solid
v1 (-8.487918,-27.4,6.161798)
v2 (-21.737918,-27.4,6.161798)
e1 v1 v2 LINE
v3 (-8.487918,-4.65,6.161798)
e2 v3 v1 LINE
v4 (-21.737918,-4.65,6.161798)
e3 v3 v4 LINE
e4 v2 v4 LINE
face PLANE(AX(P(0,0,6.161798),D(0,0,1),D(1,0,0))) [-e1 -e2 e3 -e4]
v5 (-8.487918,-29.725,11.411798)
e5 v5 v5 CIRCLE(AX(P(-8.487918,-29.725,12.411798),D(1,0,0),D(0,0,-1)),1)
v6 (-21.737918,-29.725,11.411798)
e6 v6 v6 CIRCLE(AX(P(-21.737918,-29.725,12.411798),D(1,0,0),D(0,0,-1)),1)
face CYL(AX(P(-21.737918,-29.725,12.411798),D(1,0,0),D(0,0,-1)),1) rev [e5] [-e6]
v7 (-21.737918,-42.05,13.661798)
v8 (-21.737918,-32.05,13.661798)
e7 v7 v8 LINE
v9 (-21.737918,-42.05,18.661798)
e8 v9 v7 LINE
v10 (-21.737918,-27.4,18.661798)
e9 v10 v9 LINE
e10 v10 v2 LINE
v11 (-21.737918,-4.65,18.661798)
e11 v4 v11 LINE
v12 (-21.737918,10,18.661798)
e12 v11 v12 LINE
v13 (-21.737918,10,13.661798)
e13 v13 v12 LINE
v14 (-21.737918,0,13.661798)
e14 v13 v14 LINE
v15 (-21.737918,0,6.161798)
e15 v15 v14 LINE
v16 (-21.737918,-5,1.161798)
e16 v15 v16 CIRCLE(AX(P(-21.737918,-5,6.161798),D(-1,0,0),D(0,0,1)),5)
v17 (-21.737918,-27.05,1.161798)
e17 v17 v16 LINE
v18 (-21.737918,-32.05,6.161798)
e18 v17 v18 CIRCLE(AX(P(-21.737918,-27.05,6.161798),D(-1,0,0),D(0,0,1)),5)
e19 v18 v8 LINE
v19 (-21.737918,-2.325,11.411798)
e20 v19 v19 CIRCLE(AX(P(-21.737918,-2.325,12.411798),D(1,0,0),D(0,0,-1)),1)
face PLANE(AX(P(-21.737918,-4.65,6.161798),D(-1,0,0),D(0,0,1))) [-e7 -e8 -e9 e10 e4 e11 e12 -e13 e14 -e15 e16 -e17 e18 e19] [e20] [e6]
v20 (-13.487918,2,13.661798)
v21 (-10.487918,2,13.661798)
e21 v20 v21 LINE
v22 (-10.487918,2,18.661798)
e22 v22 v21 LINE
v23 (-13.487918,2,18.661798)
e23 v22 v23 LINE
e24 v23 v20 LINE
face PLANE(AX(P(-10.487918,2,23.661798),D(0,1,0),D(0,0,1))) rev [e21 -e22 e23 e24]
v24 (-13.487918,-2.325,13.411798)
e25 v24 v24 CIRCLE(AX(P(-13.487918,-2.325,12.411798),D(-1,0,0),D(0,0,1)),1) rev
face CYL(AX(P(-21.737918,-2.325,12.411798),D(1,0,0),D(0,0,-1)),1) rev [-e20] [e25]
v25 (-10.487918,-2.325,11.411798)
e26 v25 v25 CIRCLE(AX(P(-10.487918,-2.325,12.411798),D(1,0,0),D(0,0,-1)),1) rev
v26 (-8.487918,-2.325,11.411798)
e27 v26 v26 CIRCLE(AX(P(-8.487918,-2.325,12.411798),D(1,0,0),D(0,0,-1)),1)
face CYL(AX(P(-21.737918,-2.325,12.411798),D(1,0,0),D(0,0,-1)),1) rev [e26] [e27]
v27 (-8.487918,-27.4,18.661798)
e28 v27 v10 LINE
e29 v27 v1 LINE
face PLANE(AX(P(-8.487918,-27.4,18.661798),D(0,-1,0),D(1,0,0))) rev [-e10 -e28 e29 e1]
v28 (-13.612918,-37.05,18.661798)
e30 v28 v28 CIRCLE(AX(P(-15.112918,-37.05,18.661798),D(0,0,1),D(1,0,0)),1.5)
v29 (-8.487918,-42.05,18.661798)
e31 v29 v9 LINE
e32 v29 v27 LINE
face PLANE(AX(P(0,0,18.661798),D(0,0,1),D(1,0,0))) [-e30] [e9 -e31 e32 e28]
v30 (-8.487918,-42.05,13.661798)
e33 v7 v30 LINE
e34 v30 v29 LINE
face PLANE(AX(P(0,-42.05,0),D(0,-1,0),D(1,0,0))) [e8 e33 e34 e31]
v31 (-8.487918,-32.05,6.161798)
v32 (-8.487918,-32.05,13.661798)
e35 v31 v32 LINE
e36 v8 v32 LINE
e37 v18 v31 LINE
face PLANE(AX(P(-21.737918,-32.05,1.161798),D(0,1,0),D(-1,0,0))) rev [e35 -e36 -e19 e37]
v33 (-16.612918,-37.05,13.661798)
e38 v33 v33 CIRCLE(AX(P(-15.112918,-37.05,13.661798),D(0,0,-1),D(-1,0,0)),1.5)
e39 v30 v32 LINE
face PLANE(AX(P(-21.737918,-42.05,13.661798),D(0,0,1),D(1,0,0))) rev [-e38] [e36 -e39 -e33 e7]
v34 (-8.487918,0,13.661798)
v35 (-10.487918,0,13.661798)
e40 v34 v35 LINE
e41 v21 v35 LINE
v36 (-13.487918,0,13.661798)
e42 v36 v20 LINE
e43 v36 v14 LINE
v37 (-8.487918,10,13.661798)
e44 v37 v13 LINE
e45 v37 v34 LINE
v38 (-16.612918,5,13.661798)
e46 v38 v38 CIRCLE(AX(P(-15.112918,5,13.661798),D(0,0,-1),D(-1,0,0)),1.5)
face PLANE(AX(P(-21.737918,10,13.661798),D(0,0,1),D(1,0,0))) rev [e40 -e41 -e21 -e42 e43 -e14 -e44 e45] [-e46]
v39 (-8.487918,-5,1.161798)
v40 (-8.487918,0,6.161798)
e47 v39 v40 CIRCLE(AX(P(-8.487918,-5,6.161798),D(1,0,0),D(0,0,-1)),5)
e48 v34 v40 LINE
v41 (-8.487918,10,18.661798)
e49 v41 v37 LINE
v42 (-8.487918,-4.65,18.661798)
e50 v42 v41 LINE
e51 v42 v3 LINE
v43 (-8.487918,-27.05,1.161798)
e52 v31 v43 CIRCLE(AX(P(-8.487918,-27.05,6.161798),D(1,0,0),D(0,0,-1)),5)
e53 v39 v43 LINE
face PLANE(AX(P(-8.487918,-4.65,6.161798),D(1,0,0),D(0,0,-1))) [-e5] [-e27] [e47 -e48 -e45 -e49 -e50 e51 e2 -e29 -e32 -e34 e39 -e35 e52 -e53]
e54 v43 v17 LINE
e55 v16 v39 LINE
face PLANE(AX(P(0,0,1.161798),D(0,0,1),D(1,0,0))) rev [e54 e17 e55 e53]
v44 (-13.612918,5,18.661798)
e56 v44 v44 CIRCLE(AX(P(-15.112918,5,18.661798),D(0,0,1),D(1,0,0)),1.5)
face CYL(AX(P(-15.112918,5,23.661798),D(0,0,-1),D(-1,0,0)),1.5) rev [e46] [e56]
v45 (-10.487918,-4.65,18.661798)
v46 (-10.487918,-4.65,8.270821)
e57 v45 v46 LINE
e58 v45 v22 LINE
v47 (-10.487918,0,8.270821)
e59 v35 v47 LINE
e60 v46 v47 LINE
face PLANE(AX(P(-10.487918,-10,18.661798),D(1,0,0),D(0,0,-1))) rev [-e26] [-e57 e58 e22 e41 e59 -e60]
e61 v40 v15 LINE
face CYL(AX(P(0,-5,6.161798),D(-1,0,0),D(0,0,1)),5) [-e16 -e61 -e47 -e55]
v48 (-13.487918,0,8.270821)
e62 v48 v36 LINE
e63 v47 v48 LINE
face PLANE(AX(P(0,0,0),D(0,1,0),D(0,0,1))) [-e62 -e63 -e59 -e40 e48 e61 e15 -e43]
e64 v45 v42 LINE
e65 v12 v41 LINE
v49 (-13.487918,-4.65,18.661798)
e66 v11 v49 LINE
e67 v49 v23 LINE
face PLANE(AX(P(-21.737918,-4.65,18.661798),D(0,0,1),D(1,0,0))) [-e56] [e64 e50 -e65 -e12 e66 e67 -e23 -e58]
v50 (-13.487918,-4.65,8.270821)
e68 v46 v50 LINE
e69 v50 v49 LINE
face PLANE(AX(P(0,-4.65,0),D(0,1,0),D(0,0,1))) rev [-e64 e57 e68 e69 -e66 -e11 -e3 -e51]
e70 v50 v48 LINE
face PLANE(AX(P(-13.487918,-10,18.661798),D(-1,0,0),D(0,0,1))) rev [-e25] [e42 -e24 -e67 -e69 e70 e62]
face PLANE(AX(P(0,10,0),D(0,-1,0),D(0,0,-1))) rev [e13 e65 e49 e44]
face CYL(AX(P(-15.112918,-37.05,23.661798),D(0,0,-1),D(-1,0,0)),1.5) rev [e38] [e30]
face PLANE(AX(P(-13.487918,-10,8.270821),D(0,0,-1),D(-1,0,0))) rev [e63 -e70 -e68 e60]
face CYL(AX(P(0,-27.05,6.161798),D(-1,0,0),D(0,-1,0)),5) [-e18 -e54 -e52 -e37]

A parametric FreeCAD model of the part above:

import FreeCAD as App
import Part
import Sketcher
from FreeCAD import Vector
Q = App.Units.Quantity


def edges_at(feature, points):
    """Names of the edges that pass closest to the given points."""
    edges = feature.Shape.Edges
    near = lambda p: min(range(len(edges)), key=lambda i: edges[i].distToShape(Part.Vertex(*p))[0])
    return sorted({f"Edge{near(p) + 1}" for p in points})


def add_polygon(sketch, points):
    """Adds a closed chain of lines whose ends are joined by coincident constraints."""
    first, n = sketch.GeometryCount, len(points)
    for a, b in zip(points, points[1:] + points[:1]):
        sketch.addGeometry(Part.LineSegment(App.Vector(*a, 0), App.Vector(*b, 0)), False)
    for i in range(n):
        sketch.addConstraint(Sketcher.Constraint("Coincident", first + i, 2, first + (i + 1) % n, 1))

doc = App.newDocument("Part")
body = doc.addObject("PartDesign::Body", "Body")

# Sketch on XZ plane
sketch1 = body.newObject("Sketcher::SketchObject", "Sketch")
sketch1.AttachmentSupport = (doc.getObject("XZ_Plane"), [""])
sketch1.MapMode = "FlatFace"
add_polygon(sketch1, [(-22, 6), (-22, 19), (-8, 19), (-8, 6)])  # lines 0-3
sketch1.addConstraint(Sketcher.Constraint("Vertical", 0))
sketch1.addConstraint(Sketcher.Constraint("Horizontal", 1))
sketch1.addConstraint(Sketcher.Constraint("Vertical", 2))
sketch1.addConstraint(Sketcher.Constraint("Horizontal", 3))
sketch1.addConstraint(Sketcher.Constraint("DistanceY", 0, 1, 0, 2, Q("12.5 mm")))
sketch1.addConstraint(Sketcher.Constraint("DistanceX", 1, 1, 1, 2, Q("13.25 mm")))
sketch1.addConstraint(Sketcher.Constraint("DistanceX", 0, 2, -1, 1, Q("21.737918 mm")))
sketch1.addConstraint(Sketcher.Constraint("DistanceY", -1, 1, 0, 2, Q("18.661798 mm")))
pad1 = body.newObject("PartDesign::Pad", "Pad")
pad1.Profile = sketch1
pad1.Length = 4.65

# Sketch on XY plane
sketch2 = body.newObject("Sketcher::SketchObject", "Sketch001")
sketch2.AttachmentSupport = (doc.getObject("XY_Plane"), [""])
sketch2.MapMode = "FlatFace"
sketch2.AttachmentOffset = App.Placement(Vector(0, 0, 6.161798), App.Rotation())
add_polygon(sketch2, [(-8, 0), (-8, -32), (-22, -32), (-22, 0)])  # lines 0-3
sketch2.addConstraint(Sketcher.Constraint("Vertical", 0))
sketch2.addConstraint(Sketcher.Constraint("Horizontal", 1))
sketch2.addConstraint(Sketcher.Constraint("Vertical", 2))
sketch2.addConstraint(Sketcher.Constraint("Horizontal", 3))
sketch2.addConstraint(Sketcher.Constraint("PointOnObject", 2, 2, -1))
sketch2.addConstraint(Sketcher.Constraint("DistanceX", 1, 2, 1, 1, Q("13.25 mm")))
sketch2.addConstraint(Sketcher.Constraint("DistanceY", 0, 2, 0, 1, Q("32.05 mm")))
sketch2.addConstraint(Sketcher.Constraint("DistanceX", 0, 2, -1, 1, Q("8.487918 mm")))
pad2 = body.newObject("PartDesign::Pad", "Pad001")
pad2.Profile = sketch2
pad2.Length = 5
pad2.Reversed = True

# Sketch on XY plane
sketch3 = body.newObject("Sketcher::SketchObject", "Sketch002")
sketch3.AttachmentSupport = (doc.getObject("XY_Plane"), [""])
sketch3.MapMode = "FlatFace"
sketch3.AttachmentOffset = App.Placement(Vector(0, 0, 6.161798), App.Rotation())
add_polygon(sketch3, [(-21.7, -27.4), (-21.7, -32), (-8.5, -32), (-8.5, -27.4)])  # lines 0-3
sketch3.addConstraint(Sketcher.Constraint("Vertical", 0))
sketch3.addConstraint(Sketcher.Constraint("Horizontal", 1))
sketch3.addConstraint(Sketcher.Constraint("Vertical", 2))
sketch3.addConstraint(Sketcher.Constraint("Horizontal", 3))
sketch3.addConstraint(Sketcher.Constraint("DistanceX", 1, 1, 1, 2, Q("13.25 mm")))
sketch3.addConstraint(Sketcher.Constraint("DistanceY", 0, 2, 0, 1, Q("4.65 mm")))
sketch3.addConstraint(Sketcher.Constraint("DistanceY", 2, 2, -1, 1, Q("27.4 mm")))
sketch3.addConstraint(Sketcher.Constraint("DistanceX", 0, 2, -1, 1, Q("21.737918 mm")))
pad3 = body.newObject("PartDesign::Pad", "Pad002")
pad3.Profile = sketch3
pad3.Length = 12.5

# Sketch on XZ plane
sketch4 = body.newObject("Sketcher::SketchObject", "Sketch003")
sketch4.AttachmentSupport = (doc.getObject("XZ_Plane"), [""])
sketch4.MapMode = "FlatFace"
sketch4.AttachmentOffset = App.Placement(Vector(0, 0, 32.05), App.Rotation())
add_polygon(sketch4, [(-8, 14), (-8, 19), (-22, 19), (-22, 14)])  # lines 0-3
sketch4.addConstraint(Sketcher.Constraint("Vertical", 0))
sketch4.addConstraint(Sketcher.Constraint("Horizontal", 1))
sketch4.addConstraint(Sketcher.Constraint("Vertical", 2))
sketch4.addConstraint(Sketcher.Constraint("Horizontal", 3))
sketch4.addConstraint(Sketcher.Constraint("DistanceY", 0, 1, 0, 2, Q("5 mm")))
sketch4.addConstraint(Sketcher.Constraint("DistanceX", 1, 2, 1, 1, Q("13.25 mm")))
sketch4.addConstraint(Sketcher.Constraint("DistanceX", 0, 2, -1, 1, Q("8.487918 mm")))
sketch4.addConstraint(Sketcher.Constraint("DistanceY", -1, 1, 0, 2, Q("18.661798 mm")))
pad4 = body.newObject("PartDesign::Pad", "Pad003")
pad4.Profile = sketch4
pad4.Length = 10

# Sketch on XZ plane
sketch5 = body.newObject("Sketcher::SketchObject", "Sketch004")
sketch5.AttachmentSupport = (doc.getObject("XZ_Plane"), [""])
sketch5.MapMode = "FlatFace"
add_polygon(sketch5, [(-22, 14), (-22, 19), (-8, 19), (-8, 14)])  # lines 0-3
sketch5.addConstraint(Sketcher.Constraint("Vertical", 0))
sketch5.addConstraint(Sketcher.Constraint("Horizontal", 1))
sketch5.addConstraint(Sketcher.Constraint("Vertical", 2))
sketch5.addConstraint(Sketcher.Constraint("Horizontal", 3))
sketch5.addConstraint(Sketcher.Constraint("DistanceY", 0, 1, 0, 2, Q("5 mm")))
sketch5.addConstraint(Sketcher.Constraint("DistanceX", 1, 1, 1, 2, Q("13.25 mm")))
sketch5.addConstraint(Sketcher.Constraint("DistanceX", 0, 2, -1, 1, Q("21.737918 mm")))
sketch5.addConstraint(Sketcher.Constraint("DistanceY", -1, 1, 0, 2, Q("18.661798 mm")))
pad5 = body.newObject("PartDesign::Pad", "Pad004")
pad5.Profile = sketch5
pad5.Length = 10
pad5.Reversed = True

# Sketch on XY plane
sketch6 = body.newObject("Sketcher::SketchObject", "Sketch005")
sketch6.AttachmentSupport = (doc.getObject("XY_Plane"), [""])
sketch6.MapMode = "FlatFace"
sketch6.AttachmentOffset = App.Placement(Vector(0, 0, 13.661798), App.Rotation())
sketch6.addGeometry(Part.Circle(Vector(-15.1, 5, 0), Vector(0, 0, 1), 1.5), False)
sketch6.addGeometry(Part.Circle(Vector(-15.1, -37, 0), Vector(0, 0, 1), 1.5), False)
sketch6.addConstraint(Sketcher.Constraint("Equal", 0, 1))
sketch6.addConstraint(Sketcher.Constraint("Vertical", 0, 3, 1, 3))
sketch6.addConstraint(Sketcher.Constraint("Diameter", 0, Q("3 mm")))
sketch6.addConstraint(Sketcher.Constraint("DistanceY", -1, 1, 0, 3, Q("5 mm")))
sketch6.addConstraint(Sketcher.Constraint("DistanceY", 1, 3, -1, 1, Q("37.05 mm")))
sketch6.addConstraint(Sketcher.Constraint("DistanceX", 0, 3, -1, 1, Q("15.112918 mm")))
pocket1 = body.newObject("PartDesign::Pocket", "Pocket")
pocket1.Profile = sketch6
pocket1.Length = 10
pocket1.Reversed = True

# Sketch on YZ plane
sketch7 = body.newObject("Sketcher::SketchObject", "Sketch006")
sketch7.AttachmentSupport = (doc.getObject("YZ_Plane"), [""])
sketch7.MapMode = "FlatFace"
sketch7.AttachmentOffset = App.Placement(Vector(0, 0, -8.487918), App.Rotation())
sketch7.addGeometry(Part.Circle(Vector(-2.3, 12.4, 0), Vector(0, 0, 1), 1), False)
sketch7.addConstraint(Sketcher.Constraint("Diameter", 0, Q("2 mm")))
sketch7.addConstraint(Sketcher.Constraint("DistanceX", 0, 3, -1, 1, Q("2.325 mm")))
sketch7.addConstraint(Sketcher.Constraint("DistanceY", -1, 1, 0, 3, Q("12.411798 mm")))
pocket2 = body.newObject("PartDesign::Pocket", "Pocket001")
pocket2.Profile = sketch7
pocket2.Type = "ThroughAll"

# Sketch on YZ plane
sketch8 = body.newObject("Sketcher::SketchObject", "Sketch007")
sketch8.AttachmentSupport = (doc.getObject("YZ_Plane"), [""])
sketch8.MapMode = "FlatFace"
sketch8.AttachmentOffset = App.Placement(Vector(0, 0, -8.487918), App.Rotation())
sketch8.addGeometry(Part.Circle(Vector(-29.7, 12.4, 0), Vector(0, 0, 1), 1), False)
sketch8.addConstraint(Sketcher.Constraint("Diameter", 0, Q("2 mm")))
sketch8.addConstraint(Sketcher.Constraint("DistanceX", 0, 3, -1, 1, Q("29.725 mm")))
sketch8.addConstraint(Sketcher.Constraint("DistanceY", -1, 1, 0, 3, Q("12.411798 mm")))
pocket3 = body.newObject("PartDesign::Pocket", "Pocket002")
pocket3.Profile = sketch8
pocket3.Type = "ThroughAll"

# Sketch on XZ plane
sketch9 = body.newObject("Sketcher::SketchObject", "Sketch008")
sketch9.AttachmentSupport = (doc.getObject("XZ_Plane"), [""])
sketch9.MapMode = "FlatFace"
add_polygon(sketch9, [(-13.5, 8.3), (-13.5, 18.7), (-10.5, 18.7), (-10.5, 8.3)])  # lines 0-3
sketch9.addConstraint(Sketcher.Constraint("Vertical", 0))
sketch9.addConstraint(Sketcher.Constraint("Horizontal", 1))
sketch9.addConstraint(Sketcher.Constraint("Vertical", 2))
sketch9.addConstraint(Sketcher.Constraint("Horizontal", 3))
sketch9.addConstraint(Sketcher.Constraint("DistanceX", 1, 1, 1, 2, Q("3 mm")))
sketch9.addConstraint(Sketcher.Constraint("DistanceY", 0, 1, 0, 2, Q("10.390977 mm")))
sketch9.addConstraint(Sketcher.Constraint("DistanceX", 0, 2, -1, 1, Q("13.487918 mm")))
sketch9.addConstraint(Sketcher.Constraint("DistanceY", -1, 1, 2, 2, Q("8.270821 mm")))
pocket4 = body.newObject("PartDesign::Pocket", "Pocket003")
pocket4.Profile = sketch9
pocket4.Length = 10
pocket4.Reversed = True

# Sketch on XY plane
sketch10 = body.newObject("Sketcher::SketchObject", "Sketch009")
sketch10.AttachmentSupport = (doc.getObject("XY_Plane"), [""])
sketch10.MapMode = "FlatFace"
sketch10.AttachmentOffset = App.Placement(Vector(0, 0, 13.661798), App.Rotation())
add_polygon(sketch10, [(-10.5, 2), (-10.5, 0), (-13.5, 0), (-13.5, 2)])  # lines 0-3
sketch10.addConstraint(Sketcher.Constraint("Vertical", 0))
sketch10.addConstraint(Sketcher.Constraint("Horizontal", 1))
sketch10.addConstraint(Sketcher.Constraint("Vertical", 2))
sketch10.addConstraint(Sketcher.Constraint("Horizontal", 3))
sketch10.addConstraint(Sketcher.Constraint("PointOnObject", 0, 2, -1))
sketch10.addConstraint(Sketcher.Constraint("DistanceX", 1, 2, 1, 1, Q("3 mm")))
sketch10.addConstraint(Sketcher.Constraint("DistanceY", 0, 2, 0, 1, Q("2 mm")))
sketch10.addConstraint(Sketcher.Constraint("DistanceX", 0, 2, -1, 1, Q("10.487918 mm")))
pocket5 = body.newObject("PartDesign::Pocket", "Pocket004")
pocket5.Profile = sketch10
pocket5.Length = 10
pocket5.Reversed = True
doc.recompute()

fillet = body.newObject("PartDesign::Fillet", "Fillet")
fillet.Base = (pocket5, edges_at(pocket5, [(-15.113, 0, 1.162)]))
fillet.Radius = 5
doc.recompute()

fillet2 = body.newObject("PartDesign::Fillet", "Fillet001")
fillet2.Base = (fillet, edges_at(fillet, [(-15.113, -32.05, 1.162)]))
fillet2.Radius = 5

doc.recompute()
